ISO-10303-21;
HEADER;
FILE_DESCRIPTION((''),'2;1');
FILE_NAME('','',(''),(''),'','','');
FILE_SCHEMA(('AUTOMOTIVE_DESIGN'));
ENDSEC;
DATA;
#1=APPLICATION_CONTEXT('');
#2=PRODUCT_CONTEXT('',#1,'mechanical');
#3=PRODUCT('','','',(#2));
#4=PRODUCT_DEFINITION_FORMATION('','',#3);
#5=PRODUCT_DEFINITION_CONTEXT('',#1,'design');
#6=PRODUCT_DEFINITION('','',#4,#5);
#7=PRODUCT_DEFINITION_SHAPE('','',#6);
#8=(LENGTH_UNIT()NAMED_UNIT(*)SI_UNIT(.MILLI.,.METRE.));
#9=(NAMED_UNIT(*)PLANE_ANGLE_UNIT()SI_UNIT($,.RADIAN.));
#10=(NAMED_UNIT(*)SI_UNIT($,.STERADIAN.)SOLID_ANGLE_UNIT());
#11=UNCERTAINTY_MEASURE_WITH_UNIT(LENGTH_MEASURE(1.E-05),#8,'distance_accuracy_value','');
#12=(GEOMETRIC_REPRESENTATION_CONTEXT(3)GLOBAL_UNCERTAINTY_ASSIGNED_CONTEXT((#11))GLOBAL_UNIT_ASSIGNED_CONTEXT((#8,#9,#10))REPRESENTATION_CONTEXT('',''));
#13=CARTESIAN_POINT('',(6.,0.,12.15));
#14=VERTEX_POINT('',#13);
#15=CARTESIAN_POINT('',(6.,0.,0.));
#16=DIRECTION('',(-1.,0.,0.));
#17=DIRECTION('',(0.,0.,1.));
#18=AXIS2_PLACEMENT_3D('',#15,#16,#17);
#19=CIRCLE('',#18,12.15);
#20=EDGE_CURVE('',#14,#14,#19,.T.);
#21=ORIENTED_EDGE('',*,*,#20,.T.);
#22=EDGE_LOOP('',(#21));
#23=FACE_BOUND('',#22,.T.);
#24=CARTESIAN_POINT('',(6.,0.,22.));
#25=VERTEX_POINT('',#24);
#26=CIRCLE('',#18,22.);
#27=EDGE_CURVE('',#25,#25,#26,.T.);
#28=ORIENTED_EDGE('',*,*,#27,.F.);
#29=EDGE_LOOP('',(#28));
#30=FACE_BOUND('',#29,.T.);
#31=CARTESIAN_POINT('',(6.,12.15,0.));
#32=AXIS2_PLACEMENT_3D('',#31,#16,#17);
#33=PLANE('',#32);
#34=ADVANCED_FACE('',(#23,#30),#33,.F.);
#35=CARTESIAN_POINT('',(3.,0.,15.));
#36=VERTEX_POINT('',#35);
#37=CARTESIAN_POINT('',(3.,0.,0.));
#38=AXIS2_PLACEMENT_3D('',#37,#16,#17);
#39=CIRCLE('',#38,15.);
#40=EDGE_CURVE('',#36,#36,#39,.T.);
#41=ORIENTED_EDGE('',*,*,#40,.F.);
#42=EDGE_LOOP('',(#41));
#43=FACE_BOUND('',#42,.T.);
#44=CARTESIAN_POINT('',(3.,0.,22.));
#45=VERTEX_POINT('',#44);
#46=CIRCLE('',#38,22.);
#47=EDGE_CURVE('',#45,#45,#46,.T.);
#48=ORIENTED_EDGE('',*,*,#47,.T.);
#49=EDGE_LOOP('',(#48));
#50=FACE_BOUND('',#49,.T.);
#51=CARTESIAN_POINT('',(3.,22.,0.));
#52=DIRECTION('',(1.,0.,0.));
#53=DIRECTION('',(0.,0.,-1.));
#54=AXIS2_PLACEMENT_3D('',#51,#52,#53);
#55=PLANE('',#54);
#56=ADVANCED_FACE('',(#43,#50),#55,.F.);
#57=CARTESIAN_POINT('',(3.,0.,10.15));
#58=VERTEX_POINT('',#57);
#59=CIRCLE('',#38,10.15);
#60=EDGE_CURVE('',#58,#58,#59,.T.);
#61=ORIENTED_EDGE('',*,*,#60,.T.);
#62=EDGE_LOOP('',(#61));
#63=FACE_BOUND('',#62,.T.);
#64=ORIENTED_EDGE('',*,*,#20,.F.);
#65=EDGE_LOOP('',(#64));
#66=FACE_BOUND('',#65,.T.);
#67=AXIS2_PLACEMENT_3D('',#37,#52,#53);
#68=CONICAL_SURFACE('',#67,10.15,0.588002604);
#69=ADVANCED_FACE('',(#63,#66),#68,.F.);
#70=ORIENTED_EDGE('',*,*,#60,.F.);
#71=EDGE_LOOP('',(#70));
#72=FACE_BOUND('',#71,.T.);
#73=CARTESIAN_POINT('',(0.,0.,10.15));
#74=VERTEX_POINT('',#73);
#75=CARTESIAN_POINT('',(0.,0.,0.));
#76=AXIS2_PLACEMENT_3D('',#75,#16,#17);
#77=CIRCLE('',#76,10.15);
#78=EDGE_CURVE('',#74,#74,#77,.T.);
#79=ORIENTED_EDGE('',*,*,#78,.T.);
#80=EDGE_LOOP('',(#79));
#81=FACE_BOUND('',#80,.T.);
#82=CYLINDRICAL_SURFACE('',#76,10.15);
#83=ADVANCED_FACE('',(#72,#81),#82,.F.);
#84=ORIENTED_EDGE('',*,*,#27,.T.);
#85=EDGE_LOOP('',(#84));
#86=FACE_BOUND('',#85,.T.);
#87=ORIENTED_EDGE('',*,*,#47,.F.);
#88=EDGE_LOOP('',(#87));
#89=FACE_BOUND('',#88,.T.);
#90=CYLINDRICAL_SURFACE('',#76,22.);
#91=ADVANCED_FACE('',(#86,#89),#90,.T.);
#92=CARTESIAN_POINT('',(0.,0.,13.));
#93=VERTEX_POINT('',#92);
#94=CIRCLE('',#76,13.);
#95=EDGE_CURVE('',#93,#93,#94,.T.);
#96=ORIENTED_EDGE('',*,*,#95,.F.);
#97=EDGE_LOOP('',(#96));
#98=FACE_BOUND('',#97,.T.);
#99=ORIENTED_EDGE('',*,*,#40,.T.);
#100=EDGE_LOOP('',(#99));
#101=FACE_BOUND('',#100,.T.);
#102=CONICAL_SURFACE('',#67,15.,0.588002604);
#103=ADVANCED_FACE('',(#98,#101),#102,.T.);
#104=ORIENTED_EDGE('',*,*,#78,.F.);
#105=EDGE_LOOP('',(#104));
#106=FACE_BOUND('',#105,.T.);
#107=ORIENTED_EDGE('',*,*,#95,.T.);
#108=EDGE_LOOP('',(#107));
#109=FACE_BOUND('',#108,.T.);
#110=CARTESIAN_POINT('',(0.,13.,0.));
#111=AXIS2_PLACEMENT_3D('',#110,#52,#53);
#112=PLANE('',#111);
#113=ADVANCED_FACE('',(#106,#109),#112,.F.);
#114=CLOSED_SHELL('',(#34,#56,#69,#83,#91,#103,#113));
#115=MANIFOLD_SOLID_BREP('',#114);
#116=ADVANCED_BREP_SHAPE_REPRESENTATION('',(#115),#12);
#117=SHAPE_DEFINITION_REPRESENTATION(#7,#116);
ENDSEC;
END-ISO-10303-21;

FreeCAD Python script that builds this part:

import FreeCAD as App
import Part
import Sketcher

V = App.Vector


def add_polygon(sketch, points):
    """Adds a closed chain of lines whose ends are joined by coincident constraints."""
    first, n = sketch.GeometryCount, len(points)
    for a, b in zip(points, points[1:] + points[:1]):
        sketch.addGeometry(Part.LineSegment(App.Vector(*a, 0), App.Vector(*b, 0)), False)
    for i in range(n):
        sketch.addConstraint(Sketcher.Constraint("Coincident", first + i, 2, first + (i + 1) % n, 1))

doc = App.newDocument("Part")
body = doc.addObject("PartDesign::Body", "Body")

# Sketch on XY plane
sketch1 = body.newObject("Sketcher::SketchObject", "Sketch")
sketch1.AttachmentSupport = (doc.getObject("XY_Plane"), [""])
sketch1.MapMode = "FlatFace"
add_polygon(sketch1, [(6, 12.15), (6, 22), (3, 22), (3, 15), (0, 13), (0, 10.15), (3, 10.15)])  # lines 0-6
sketch1.addConstraint([
    Sketcher.Constraint("Vertical", 0),
    Sketcher.Constraint("Horizontal", 1),
    Sketcher.Constraint("Vertical", 2),
    Sketcher.Constraint("Vertical", 4),
    Sketcher.Constraint("Horizontal", 5),
    Sketcher.Constraint("PointOnObject", 3, 2, -2),
    Sketcher.Constraint("Parallel", 3, 6),
    Sketcher.Constraint("Vertical", 2, 2, 5, 2),
    Sketcher.Constraint("Equal", 1, 5),
    Sketcher.Constraint("DistanceX", 1, 2, 1, 1, 3.0),
    Sketcher.Constraint("DistanceY", 2, 2, 2, 1, 7.0),
    Sketcher.Constraint("DistanceY", -1, 1, 0, 2, 22.0),
    Sketcher.Constraint("DistanceY", -1, 1, 3, 2, 13.0),
    Sketcher.Constraint("DistanceY", 0, 1, 0, 2, 9.85),
])
revolution = body.newObject("PartDesign::Revolution", "Revolution")
revolution.Profile = sketch1
revolution.ReferenceAxis = (sketch1, ["H_Axis"])
revolution.Angle = 360

doc.recompute()
